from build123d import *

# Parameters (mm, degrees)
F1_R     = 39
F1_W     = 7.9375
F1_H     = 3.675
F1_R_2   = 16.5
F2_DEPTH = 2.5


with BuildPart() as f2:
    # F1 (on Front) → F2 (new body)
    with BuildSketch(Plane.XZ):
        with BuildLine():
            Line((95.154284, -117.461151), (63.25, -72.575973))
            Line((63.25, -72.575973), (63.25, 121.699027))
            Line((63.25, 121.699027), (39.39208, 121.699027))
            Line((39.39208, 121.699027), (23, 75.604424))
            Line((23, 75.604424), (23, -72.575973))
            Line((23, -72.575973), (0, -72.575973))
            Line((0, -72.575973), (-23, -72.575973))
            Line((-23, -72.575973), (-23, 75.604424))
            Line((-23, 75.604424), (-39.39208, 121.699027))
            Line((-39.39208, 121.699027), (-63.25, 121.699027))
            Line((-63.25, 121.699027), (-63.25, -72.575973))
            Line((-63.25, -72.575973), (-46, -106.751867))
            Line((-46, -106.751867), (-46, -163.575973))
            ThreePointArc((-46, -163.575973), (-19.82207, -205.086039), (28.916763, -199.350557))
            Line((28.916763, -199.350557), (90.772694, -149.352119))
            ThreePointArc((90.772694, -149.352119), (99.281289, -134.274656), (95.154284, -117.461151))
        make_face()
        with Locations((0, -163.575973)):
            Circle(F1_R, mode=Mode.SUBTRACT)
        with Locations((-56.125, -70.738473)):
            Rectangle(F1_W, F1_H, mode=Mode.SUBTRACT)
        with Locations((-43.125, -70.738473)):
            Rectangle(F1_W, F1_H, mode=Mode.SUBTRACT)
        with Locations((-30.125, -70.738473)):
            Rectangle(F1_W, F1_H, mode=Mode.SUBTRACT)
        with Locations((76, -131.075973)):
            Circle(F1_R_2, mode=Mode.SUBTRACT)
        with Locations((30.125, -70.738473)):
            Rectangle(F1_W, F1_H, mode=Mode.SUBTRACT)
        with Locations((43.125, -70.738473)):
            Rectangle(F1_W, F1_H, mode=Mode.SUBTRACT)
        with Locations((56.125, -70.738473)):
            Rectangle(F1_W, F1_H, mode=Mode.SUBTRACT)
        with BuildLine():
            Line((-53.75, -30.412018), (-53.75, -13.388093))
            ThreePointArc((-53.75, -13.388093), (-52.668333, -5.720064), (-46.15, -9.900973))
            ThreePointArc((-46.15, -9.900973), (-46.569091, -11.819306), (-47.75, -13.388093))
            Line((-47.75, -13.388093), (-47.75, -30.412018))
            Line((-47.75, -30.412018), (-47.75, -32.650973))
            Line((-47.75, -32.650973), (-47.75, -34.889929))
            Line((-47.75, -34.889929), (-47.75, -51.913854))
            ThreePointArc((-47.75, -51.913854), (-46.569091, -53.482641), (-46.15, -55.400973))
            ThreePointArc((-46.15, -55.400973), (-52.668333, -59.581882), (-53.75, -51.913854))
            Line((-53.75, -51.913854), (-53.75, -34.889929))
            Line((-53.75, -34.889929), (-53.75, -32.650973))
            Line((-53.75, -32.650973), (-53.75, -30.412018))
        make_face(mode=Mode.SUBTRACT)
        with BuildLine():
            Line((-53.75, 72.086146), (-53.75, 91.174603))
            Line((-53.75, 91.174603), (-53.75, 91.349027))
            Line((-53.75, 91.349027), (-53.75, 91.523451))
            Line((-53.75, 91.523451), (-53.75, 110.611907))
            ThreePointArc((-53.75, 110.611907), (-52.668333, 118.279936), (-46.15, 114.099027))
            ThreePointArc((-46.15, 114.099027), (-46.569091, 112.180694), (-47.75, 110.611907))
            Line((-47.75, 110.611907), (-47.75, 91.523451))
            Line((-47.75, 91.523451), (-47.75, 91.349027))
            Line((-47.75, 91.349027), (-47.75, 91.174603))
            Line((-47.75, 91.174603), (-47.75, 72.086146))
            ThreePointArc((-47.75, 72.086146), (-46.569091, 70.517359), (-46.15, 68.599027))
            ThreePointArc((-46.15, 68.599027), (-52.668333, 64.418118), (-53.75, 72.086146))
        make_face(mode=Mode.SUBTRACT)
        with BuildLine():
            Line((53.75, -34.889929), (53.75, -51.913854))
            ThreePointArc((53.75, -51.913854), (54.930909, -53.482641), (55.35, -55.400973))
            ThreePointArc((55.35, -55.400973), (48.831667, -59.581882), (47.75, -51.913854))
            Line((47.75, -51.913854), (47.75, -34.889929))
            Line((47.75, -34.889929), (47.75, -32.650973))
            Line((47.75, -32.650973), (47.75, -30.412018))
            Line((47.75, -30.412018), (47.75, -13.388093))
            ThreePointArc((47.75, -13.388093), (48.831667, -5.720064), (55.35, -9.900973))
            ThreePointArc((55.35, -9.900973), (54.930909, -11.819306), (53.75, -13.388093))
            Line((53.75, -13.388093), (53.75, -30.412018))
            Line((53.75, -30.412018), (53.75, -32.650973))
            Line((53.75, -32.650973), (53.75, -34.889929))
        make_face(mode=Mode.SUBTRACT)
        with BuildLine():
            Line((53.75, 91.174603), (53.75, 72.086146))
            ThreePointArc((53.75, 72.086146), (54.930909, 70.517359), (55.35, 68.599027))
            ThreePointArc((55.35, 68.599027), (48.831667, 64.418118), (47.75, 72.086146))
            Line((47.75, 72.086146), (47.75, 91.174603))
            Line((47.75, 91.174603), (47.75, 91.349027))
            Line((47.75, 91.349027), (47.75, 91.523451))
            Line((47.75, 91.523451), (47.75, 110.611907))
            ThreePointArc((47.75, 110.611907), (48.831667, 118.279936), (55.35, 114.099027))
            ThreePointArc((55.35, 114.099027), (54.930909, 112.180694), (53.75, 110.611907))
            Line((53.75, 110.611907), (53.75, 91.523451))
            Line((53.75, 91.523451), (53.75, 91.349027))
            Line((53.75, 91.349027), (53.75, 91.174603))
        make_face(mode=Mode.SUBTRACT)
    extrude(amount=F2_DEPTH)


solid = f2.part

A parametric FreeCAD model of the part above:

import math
import FreeCAD as App
import Part
import Sketcher
from FreeCAD import Vector
Q = App.Units.Quantity

doc = App.newDocument("Part")
body = doc.addObject("PartDesign::Body", "Body")

# Sketch on XZ plane
sketch1 = body.newObject("Sketcher::SketchObject", "Sketch")
sketch1.AttachmentSupport = (doc.getObject("XZ_Plane"), [""])
sketch1.MapMode = "FlatFace"
sketch1.addGeometry([
    Part.LineSegment(Vector(95.2, -117.5, 0), Vector(63.2, -72.6, 0)),  # 0
    Part.LineSegment(Vector(63.2, -72.6, 0), Vector(63.2, 121.7, 0)),  # 1
    Part.LineSegment(Vector(63.2, 121.7, 0), Vector(39.4, 121.7, 0)),  # 2
    Part.LineSegment(Vector(39.4, 121.7, 0), Vector(23, 75.6, 0)),  # 3
    Part.LineSegment(Vector(23, 75.6, 0), Vector(23, -72.6, 0)),  # 4
    Part.LineSegment(Vector(23, -72.6, 0), Vector(-23, -72.6, 0)),  # 5
    Part.LineSegment(Vector(-23, -72.6, 0), Vector(-23, 75.6, 0)),  # 6
    Part.LineSegment(Vector(-23, 75.6, 0), Vector(-39.4, 121.7, 0)),  # 7
    Part.LineSegment(Vector(-39.4, 121.7, 0), Vector(-63.2, 121.7, 0)),  # 8
    Part.LineSegment(Vector(-63.2, 121.7, 0), Vector(-63.2, -72.6, 0)),  # 9
    Part.LineSegment(Vector(-63.2, -72.6, 0), Vector(-46, -106.8, 0)),  # 10
    Part.LineSegment(Vector(-46, -106.8, 0), Vector(-46, -163.6, 0)),  # 11
    Part.ArcOfCircle(Part.Circle(Vector(0, -163.6, 0), Vector(0, 0, 1), 46), math.radians(180), math.radians(309)),  # 12
    Part.LineSegment(Vector(28.9, -199.4, 0), Vector(90.8, -149.4, 0)),  # 13
    Part.ArcOfCircle(Part.Circle(Vector(76, -131.1, 0), Vector(0, 0, 1), 23.5), math.radians(-51), math.radians(35)),  # 14
    Part.Circle(Vector(0, -163.6, 0), Vector(0, 0, 1), 39),  # 15
    Part.LineSegment(Vector(-52.2, -72.6, 0), Vector(-60.1, -72.6, 0)),  # 16
    Part.LineSegment(Vector(-60.1, -72.6, 0), Vector(-60.1, -68.9, 0)),  # 17
    Part.LineSegment(Vector(-60.1, -68.9, 0), Vector(-52.2, -68.9, 0)),  # 18
    Part.LineSegment(Vector(-52.2, -68.9, 0), Vector(-52.2, -72.6, 0)),  # 19
    Part.LineSegment(Vector(-39.2, -72.6, 0), Vector(-47.1, -72.6, 0)),  # 20
    Part.LineSegment(Vector(-47.1, -72.6, 0), Vector(-47.1, -68.9, 0)),  # 21
    Part.LineSegment(Vector(-47.1, -68.9, 0), Vector(-39.2, -68.9, 0)),  # 22
    Part.LineSegment(Vector(-39.2, -68.9, 0), Vector(-39.2, -72.6, 0)),  # 23
    Part.LineSegment(Vector(-26.2, -72.6, 0), Vector(-34.1, -72.6, 0)),  # 24
    Part.LineSegment(Vector(-34.1, -72.6, 0), Vector(-34.1, -68.9, 0)),  # 25
    Part.LineSegment(Vector(-34.1, -68.9, 0), Vector(-26.2, -68.9, 0)),  # 26
    Part.LineSegment(Vector(-26.2, -68.9, 0), Vector(-26.2, -72.6, 0)),  # 27
    Part.Circle(Vector(76, -131.1, 0), Vector(0, 0, 1), 16.5),  # 28
    Part.LineSegment(Vector(34.1, -72.6, 0), Vector(26.2, -72.6, 0)),  # 29
    Part.LineSegment(Vector(26.2, -72.6, 0), Vector(26.2, -68.9, 0)),  # 30
    Part.LineSegment(Vector(26.2, -68.9, 0), Vector(34.1, -68.9, 0)),  # 31
    Part.LineSegment(Vector(34.1, -68.9, 0), Vector(34.1, -72.6, 0)),  # 32
    Part.LineSegment(Vector(47.1, -72.6, 0), Vector(39.2, -72.6, 0)),  # 33
    Part.LineSegment(Vector(39.2, -72.6, 0), Vector(39.2, -68.9, 0)),  # 34
    Part.LineSegment(Vector(39.2, -68.9, 0), Vector(47.1, -68.9, 0)),  # 35
    Part.LineSegment(Vector(47.1, -68.9, 0), Vector(47.1, -72.6, 0)),  # 36
    Part.LineSegment(Vector(60.1, -72.6, 0), Vector(52.2, -72.6, 0)),  # 37
    Part.LineSegment(Vector(52.2, -72.6, 0), Vector(52.2, -68.9, 0)),  # 38
    Part.LineSegment(Vector(52.2, -68.9, 0), Vector(60.1, -68.9, 0)),  # 39
    Part.LineSegment(Vector(60.1, -68.9, 0), Vector(60.1, -72.6, 0)),  # 40
    Part.LineSegment(Vector(-53.8, -51.9, 0), Vector(-53.8, -13.4, 0)),  # 41
    Part.ArcOfCircle(Part.Circle(Vector(-50.8, -9.9, 0), Vector(0, 0, 1), 4.6), math.radians(0), math.radians(229)),  # 42
    Part.ArcOfCircle(Part.Circle(Vector(-50.8, -9.9, 0), Vector(0, 0, 1), 4.6), math.radians(-49), math.radians(0)),  # 43
    Part.LineSegment(Vector(-47.8, -13.4, 0), Vector(-47.8, -51.9, 0)),  # 44
    Part.ArcOfCircle(Part.Circle(Vector(-50.8, -55.4, 0), Vector(0, 0, 1), 4.6), math.radians(0), math.radians(49)),  # 45
    Part.ArcOfCircle(Part.Circle(Vector(-50.8, -55.4, 0), Vector(0, 0, 1), 4.6), math.radians(131), math.radians(360)),  # 46
    Part.ArcOfCircle(Part.Circle(Vector(-50.8, 68.6, 0), Vector(0, 0, 1), 4.6), math.radians(131), math.radians(360)),  # 47
    Part.LineSegment(Vector(-53.8, 72.1, 0), Vector(-53.8, 110.6, 0)),  # 48
    Part.ArcOfCircle(Part.Circle(Vector(-50.8, 114.1, 0), Vector(0, 0, 1), 4.6), math.radians(0), math.radians(229)),  # 49
    Part.ArcOfCircle(Part.Circle(Vector(-50.8, 114.1, 0), Vector(0, 0, 1), 4.6), math.radians(-49), math.radians(0)),  # 50
    Part.LineSegment(Vector(-47.8, 110.6, 0), Vector(-47.8, 72.1, 0)),  # 51
    Part.ArcOfCircle(Part.Circle(Vector(-50.8, 68.6, 0), Vector(0, 0, 1), 4.6), math.radians(0), math.radians(49)),  # 52
    Part.LineSegment(Vector(53.8, -13.4, 0), Vector(53.8, -51.9, 0)),  # 53
    Part.ArcOfCircle(Part.Circle(Vector(50.7, -55.4, 0), Vector(0, 0, 1), 4.6), math.radians(0), math.radians(49)),  # 54
    Part.ArcOfCircle(Part.Circle(Vector(50.7, -55.4, 0), Vector(0, 0, 1), 4.6), math.radians(131), math.radians(360)),  # 55
    Part.LineSegment(Vector(47.8, -51.9, 0), Vector(47.8, -13.4, 0)),  # 56
    Part.ArcOfCircle(Part.Circle(Vector(50.7, -9.9, 0), Vector(0, 0, 1), 4.6), math.radians(0), math.radians(229)),  # 57
    Part.ArcOfCircle(Part.Circle(Vector(50.7, -9.9, 0), Vector(0, 0, 1), 4.6), math.radians(-49), math.radians(0)),  # 58
    Part.LineSegment(Vector(53.8, 110.6, 0), Vector(53.8, 72.1, 0)),  # 59
    Part.ArcOfCircle(Part.Circle(Vector(50.7, 68.6, 0), Vector(0, 0, 1), 4.6), math.radians(0), math.radians(49)),  # 60
    Part.ArcOfCircle(Part.Circle(Vector(50.7, 68.6, 0), Vector(0, 0, 1), 4.6), math.radians(131), math.radians(360)),  # 61
    Part.LineSegment(Vector(47.8, 72.1, 0), Vector(47.8, 110.6, 0)),  # 62
    Part.ArcOfCircle(Part.Circle(Vector(50.7, 114.1, 0), Vector(0, 0, 1), 4.6), math.radians(0), math.radians(229)),  # 63
    Part.ArcOfCircle(Part.Circle(Vector(50.7, 114.1, 0), Vector(0, 0, 1), 4.6), math.radians(-49), math.radians(0)),  # 64
], False)
sketch1.addConstraint([
    Sketcher.Constraint("Coincident", 0, 2, 1, 1),
    Sketcher.Constraint("Coincident", 1, 2, 2, 1),
    Sketcher.Constraint("Coincident", 2, 2, 3, 1),
    Sketcher.Constraint("Coincident", 3, 2, 4, 1),
    Sketcher.Constraint("Coincident", 4, 2, 5, 1),
    Sketcher.Constraint("Coincident", 5, 2, 6, 1),
    Sketcher.Constraint("Coincident", 6, 2, 7, 1),
    Sketcher.Constraint("Coincident", 7, 2, 8, 1),
    Sketcher.Constraint("Coincident", 8, 2, 9, 1),
    Sketcher.Constraint("Coincident", 9, 2, 10, 1),
    Sketcher.Constraint("Coincident", 10, 2, 11, 1),
    Sketcher.Constraint("Tangent", 11, 2, 12, 1),
    Sketcher.Constraint("Tangent", 12, 2, 13, 1),
    Sketcher.Constraint("Tangent", 13, 2, 14, 1),
    Sketcher.Constraint("Tangent", 14, 2, 0, 1),
    Sketcher.Constraint("Coincident", 16, 2, 17, 1),
    Sketcher.Constraint("Coincident", 17, 2, 18, 1),
    Sketcher.Constraint("Coincident", 18, 2, 19, 1),
    Sketcher.Constraint("Coincident", 19, 2, 16, 1),
    Sketcher.Constraint("Coincident", 20, 2, 21, 1),
    Sketcher.Constraint("Coincident", 21, 2, 22, 1),
    Sketcher.Constraint("Coincident", 22, 2, 23, 1),
    Sketcher.Constraint("Coincident", 23, 2, 20, 1),
    Sketcher.Constraint("Coincident", 24, 2, 25, 1),
    Sketcher.Constraint("Coincident", 25, 2, 26, 1),
    Sketcher.Constraint("Coincident", 26, 2, 27, 1),
    Sketcher.Constraint("Coincident", 27, 2, 24, 1),
    Sketcher.Constraint("Coincident", 29, 2, 30, 1),
    Sketcher.Constraint("Coincident", 30, 2, 31, 1),
    Sketcher.Constraint("Coincident", 31, 2, 32, 1),
    Sketcher.Constraint("Coincident", 32, 2, 29, 1),
    Sketcher.Constraint("Coincident", 33, 2, 34, 1),
    Sketcher.Constraint("Coincident", 34, 2, 35, 1),
    Sketcher.Constraint("Coincident", 35, 2, 36, 1),
    Sketcher.Constraint("Coincident", 36, 2, 33, 1),
    Sketcher.Constraint("Coincident", 37, 2, 38, 1),
    Sketcher.Constraint("Coincident", 38, 2, 39, 1),
    Sketcher.Constraint("Coincident", 39, 2, 40, 1),
    Sketcher.Constraint("Coincident", 40, 2, 37, 1),
    Sketcher.Constraint("Coincident", 41, 2, 42, 2),
    Sketcher.Constraint("Tangent", 42, 1, 43, 2),
    Sketcher.Constraint("Coincident", 43, 1, 44, 1),
    Sketcher.Constraint("Coincident", 44, 2, 45, 2),
    Sketcher.Constraint("Tangent", 45, 1, 46, 2),
    Sketcher.Constraint("Coincident", 46, 1, 41, 1),
    Sketcher.Constraint("Coincident", 47, 1, 48, 1),
    Sketcher.Constraint("Coincident", 48, 2, 49, 2),
    Sketcher.Constraint("Tangent", 49, 1, 50, 2),
    Sketcher.Constraint("Coincident", 50, 1, 51, 1),
    Sketcher.Constraint("Coincident", 51, 2, 52, 2),
    Sketcher.Constraint("Tangent", 52, 1, 47, 2),
    Sketcher.Constraint("Coincident", 53, 2, 54, 2),
    Sketcher.Constraint("Tangent", 54, 1, 55, 2),
    Sketcher.Constraint("Coincident", 55, 1, 56, 1),
    Sketcher.Constraint("Coincident", 56, 2, 57, 2),
    Sketcher.Constraint("Tangent", 57, 1, 58, 2),
    Sketcher.Constraint("Coincident", 58, 1, 53, 1),
    Sketcher.Constraint("Coincident", 59, 2, 60, 2),
    Sketcher.Constraint("Tangent", 60, 1, 61, 2),
    Sketcher.Constraint("Coincident", 61, 1, 62, 1),
    Sketcher.Constraint("Coincident", 62, 2, 63, 2),
    Sketcher.Constraint("Tangent", 63, 1, 64, 2),
    Sketcher.Constraint("Coincident", 64, 1, 59, 1),
    Sketcher.Constraint("Vertical", 1),
    Sketcher.Constraint("Horizontal", 2),
    Sketcher.Constraint("Vertical", 4),
    Sketcher.Constraint("Horizontal", 5),
    Sketcher.Constraint("Vertical", 6),
    Sketcher.Constraint("Horizontal", 8),
    Sketcher.Constraint("Vertical", 9),
    Sketcher.Constraint("Vertical", 11),
    Sketcher.Constraint("Horizontal", 16),
    Sketcher.Constraint("Vertical", 17),
    Sketcher.Constraint("Horizontal", 18),
    Sketcher.Constraint("Vertical", 19),
    Sketcher.Constraint("Horizontal", 20),
    Sketcher.Constraint("Vertical", 21),
    Sketcher.Constraint("Horizontal", 22),
    Sketcher.Constraint("Vertical", 23),
    Sketcher.Constraint("Horizontal", 24),
    Sketcher.Constraint("Vertical", 25),
    Sketcher.Constraint("Horizontal", 26),
    Sketcher.Constraint("Vertical", 27),
    Sketcher.Constraint("Horizontal", 29),
    Sketcher.Constraint("Vertical", 30),
    Sketcher.Constraint("Horizontal", 31),
    Sketcher.Constraint("Vertical", 32),
    Sketcher.Constraint("Horizontal", 33),
    Sketcher.Constraint("Vertical", 34),
    Sketcher.Constraint("Horizontal", 35),
    Sketcher.Constraint("Vertical", 36),
    Sketcher.Constraint("Horizontal", 37),
    Sketcher.Constraint("Vertical", 38),
    Sketcher.Constraint("Horizontal", 39),
    Sketcher.Constraint("Vertical", 40),
    Sketcher.Constraint("Vertical", 41),
    Sketcher.Constraint("Vertical", 44),
    Sketcher.Constraint("Vertical", 48),
    Sketcher.Constraint("Vertical", 51),
    Sketcher.Constraint("Vertical", 53),
    Sketcher.Constraint("Vertical", 56),
    Sketcher.Constraint("Vertical", 59),
    Sketcher.Constraint("Vertical", 62),
    Sketcher.Constraint("Coincident", 15, 3, 12, 3),
    Sketcher.Constraint("Coincident", 28, 3, 14, 3),
    Sketcher.Constraint("Equal", 42, 43),
    Sketcher.Constraint("Equal", 43, 45),
    Sketcher.Constraint("Equal", 45, 46),
    Sketcher.Constraint("Equal", 46, 47),
    Sketcher.Constraint("Equal", 47, 49),
    Sketcher.Constraint("Equal", 49, 50),
    Sketcher.Constraint("Equal", 50, 52),
    Sketcher.Constraint("Equal", 52, 54),
    Sketcher.Constraint("Equal", 54, 55),
    Sketcher.Constraint("Equal", 55, 57),
    Sketcher.Constraint("Equal", 57, 58),
    Sketcher.Constraint("Equal", 58, 60),
    Sketcher.Constraint("Equal", 60, 61),
    Sketcher.Constraint("Equal", 61, 63),
    Sketcher.Constraint("Equal", 63, 64),
    Sketcher.Constraint("Symmetric", 45, 3, 54, 3, -2),
    Sketcher.Constraint("Symmetric", 42, 3, 57, 3, -2),
    Sketcher.Constraint("Symmetric", 47, 3, 60, 3, -2),
    Sketcher.Constraint("Symmetric", 49, 3, 63, 3, -2),
    Sketcher.Constraint("Symmetric", 3, 2, 6, 2, -2),
    Sketcher.Constraint("Symmetric", 2, 2, 7, 2, -2),
    Sketcher.Constraint("Symmetric", 0, 2, 9, 2, -2),
    Sketcher.Constraint("Symmetric", 27, 2, 29, 2, -2),
    Sketcher.Constraint("Symmetric", 25, 2, 31, 2, -2),
    Sketcher.Constraint("Symmetric", 23, 2, 33, 2, -2),
    Sketcher.Constraint("Symmetric", 21, 2, 35, 2, -2),
    Sketcher.Constraint("Symmetric", 19, 2, 37, 2, -2),
    Sketcher.Constraint("Symmetric", 17, 2, 39, 2, -2),
    Sketcher.Constraint("PointOnObject", 12, 3, -2),
    Sketcher.Constraint("Horizontal", 0, 2, 4, 2),
    Sketcher.Constraint("Horizontal", 9, 2, 16, 2),
    Sketcher.Constraint("Horizontal", 19, 2, 20, 2),
    Sketcher.Constraint("Horizontal", 18, 2, 21, 2),
    Sketcher.Constraint("Horizontal", 23, 2, 24, 2),
    Sketcher.Constraint("Horizontal", 22, 2, 25, 2),
    Sketcher.Constraint("Horizontal", 58, 3, 42, 1),
    Sketcher.Constraint("Horizontal", 41, 2, 43, 1),
    Sketcher.Constraint("Horizontal", 55, 3, 45, 1),
    Sketcher.Constraint("Horizontal", 44, 2, 46, 1),
    Sketcher.Constraint("Horizontal", 64, 3, 49, 1),
    Sketcher.Constraint("Horizontal", 48, 2, 50, 1),
    Sketcher.Constraint("Horizontal", 47, 1, 51, 2),
    Sketcher.Constraint("Horizontal", 61, 3, 52, 1),
    Sketcher.Constraint("Horizontal", 46, 1, 53, 2),
    Sketcher.Constraint("Horizontal", 45, 1, 54, 1),
    Sketcher.Constraint("Horizontal", 53, 2, 55, 1),
    Sketcher.Constraint("Horizontal", 42, 1, 57, 1),
    Sketcher.Constraint("Horizontal", 51, 2, 59, 2),
    Sketcher.Constraint("Horizontal", 52, 1, 60, 1),
    Sketcher.Constraint("Horizontal", 59, 2, 61, 1),
    Sketcher.Constraint("Horizontal", 49, 1, 63, 1),
    Sketcher.Constraint("Vertical", 46, 3, 47, 3),
    Sketcher.Constraint("Vertical", 46, 1, 47, 1),
    Sketcher.Constraint("Equal", 18, 20),
    Sketcher.Constraint("Equal", 22, 24),
    Sketcher.Constraint("Equal", 44, 48),
    Sketcher.Constraint("Diameter", 15, Q("78 mm")),
    Sketcher.Constraint("Diameter", 28, Q("33 mm")),
    Sketcher.Constraint("Radius", 12, Q("46 mm")),
    Sketcher.Constraint("Radius", 14, Q("23.5 mm")),
    Sketcher.Constraint("Radius", 42, Q("4.6 mm")),
    Sketcher.Constraint("DistanceX", 5, 2, 5, 1, Q("46 mm")),
    Sketcher.Constraint("DistanceX", -1, 1, 14, 3, Q("76 mm")),
    Sketcher.Constraint("DistanceY", 1, 1, 1, 2, Q("194.275 mm")),
    Sketcher.Constraint("DistanceY", 17, 1, 17, 2, Q("3.675 mm")),
    Sketcher.Constraint("DistanceX", 42, 3, -1, 1, Q("50.75 mm")),
    Sketcher.Constraint("DistanceX", -1, 1, 0, 2, Q("63.25 mm")),
    Sketcher.Constraint("DistanceX", 41, 2, -1, 1, Q("53.75 mm")),
    Sketcher.Constraint("DistanceX", 16, 2, 16, 1, Q("7.9375 mm")),
    Sketcher.Constraint("DistanceX", 2, 2, 2, 1, Q("23.85792 mm")),
    Sketcher.Constraint("DistanceY", 41, 1, 41, 2, Q("38.525761 mm")),
    Sketcher.Constraint("DistanceY", 4, 2, 4, 1, Q("148.180397 mm")),
    Sketcher.Constraint("DistanceY", 11, 2, 11, 1, Q("56.824106 mm")),
    Sketcher.Constraint("DistanceY", 13, 2, -1, 1, Q("149.352119 mm")),
    Sketcher.Constraint("DistanceY", 14, 2, -1, 1, Q("117.461151 mm")),
    Sketcher.Constraint("DistanceX", 16, 2, -1, 1, Q("60.09375 mm")),
    Sketcher.Constraint("DistanceX", 20, 2, -1, 1, Q("47.09375 mm")),
    Sketcher.Constraint("DistanceX", 24, 2, -1, 1, Q("34.09375 mm")),
    Sketcher.Constraint("Distance", 0, Q("55.068707 mm")),
    Sketcher.Constraint("DistanceY", 42, 3, -1, 1, Q("9.900973 mm")),
    Sketcher.Constraint("DistanceY", -1, 1, 47, 3, Q("68.599027 mm")),
])
pad1 = body.newObject("PartDesign::Pad", "Pad")
pad1.Profile = sketch1
pad1.Length = 2.5

doc.recompute()
